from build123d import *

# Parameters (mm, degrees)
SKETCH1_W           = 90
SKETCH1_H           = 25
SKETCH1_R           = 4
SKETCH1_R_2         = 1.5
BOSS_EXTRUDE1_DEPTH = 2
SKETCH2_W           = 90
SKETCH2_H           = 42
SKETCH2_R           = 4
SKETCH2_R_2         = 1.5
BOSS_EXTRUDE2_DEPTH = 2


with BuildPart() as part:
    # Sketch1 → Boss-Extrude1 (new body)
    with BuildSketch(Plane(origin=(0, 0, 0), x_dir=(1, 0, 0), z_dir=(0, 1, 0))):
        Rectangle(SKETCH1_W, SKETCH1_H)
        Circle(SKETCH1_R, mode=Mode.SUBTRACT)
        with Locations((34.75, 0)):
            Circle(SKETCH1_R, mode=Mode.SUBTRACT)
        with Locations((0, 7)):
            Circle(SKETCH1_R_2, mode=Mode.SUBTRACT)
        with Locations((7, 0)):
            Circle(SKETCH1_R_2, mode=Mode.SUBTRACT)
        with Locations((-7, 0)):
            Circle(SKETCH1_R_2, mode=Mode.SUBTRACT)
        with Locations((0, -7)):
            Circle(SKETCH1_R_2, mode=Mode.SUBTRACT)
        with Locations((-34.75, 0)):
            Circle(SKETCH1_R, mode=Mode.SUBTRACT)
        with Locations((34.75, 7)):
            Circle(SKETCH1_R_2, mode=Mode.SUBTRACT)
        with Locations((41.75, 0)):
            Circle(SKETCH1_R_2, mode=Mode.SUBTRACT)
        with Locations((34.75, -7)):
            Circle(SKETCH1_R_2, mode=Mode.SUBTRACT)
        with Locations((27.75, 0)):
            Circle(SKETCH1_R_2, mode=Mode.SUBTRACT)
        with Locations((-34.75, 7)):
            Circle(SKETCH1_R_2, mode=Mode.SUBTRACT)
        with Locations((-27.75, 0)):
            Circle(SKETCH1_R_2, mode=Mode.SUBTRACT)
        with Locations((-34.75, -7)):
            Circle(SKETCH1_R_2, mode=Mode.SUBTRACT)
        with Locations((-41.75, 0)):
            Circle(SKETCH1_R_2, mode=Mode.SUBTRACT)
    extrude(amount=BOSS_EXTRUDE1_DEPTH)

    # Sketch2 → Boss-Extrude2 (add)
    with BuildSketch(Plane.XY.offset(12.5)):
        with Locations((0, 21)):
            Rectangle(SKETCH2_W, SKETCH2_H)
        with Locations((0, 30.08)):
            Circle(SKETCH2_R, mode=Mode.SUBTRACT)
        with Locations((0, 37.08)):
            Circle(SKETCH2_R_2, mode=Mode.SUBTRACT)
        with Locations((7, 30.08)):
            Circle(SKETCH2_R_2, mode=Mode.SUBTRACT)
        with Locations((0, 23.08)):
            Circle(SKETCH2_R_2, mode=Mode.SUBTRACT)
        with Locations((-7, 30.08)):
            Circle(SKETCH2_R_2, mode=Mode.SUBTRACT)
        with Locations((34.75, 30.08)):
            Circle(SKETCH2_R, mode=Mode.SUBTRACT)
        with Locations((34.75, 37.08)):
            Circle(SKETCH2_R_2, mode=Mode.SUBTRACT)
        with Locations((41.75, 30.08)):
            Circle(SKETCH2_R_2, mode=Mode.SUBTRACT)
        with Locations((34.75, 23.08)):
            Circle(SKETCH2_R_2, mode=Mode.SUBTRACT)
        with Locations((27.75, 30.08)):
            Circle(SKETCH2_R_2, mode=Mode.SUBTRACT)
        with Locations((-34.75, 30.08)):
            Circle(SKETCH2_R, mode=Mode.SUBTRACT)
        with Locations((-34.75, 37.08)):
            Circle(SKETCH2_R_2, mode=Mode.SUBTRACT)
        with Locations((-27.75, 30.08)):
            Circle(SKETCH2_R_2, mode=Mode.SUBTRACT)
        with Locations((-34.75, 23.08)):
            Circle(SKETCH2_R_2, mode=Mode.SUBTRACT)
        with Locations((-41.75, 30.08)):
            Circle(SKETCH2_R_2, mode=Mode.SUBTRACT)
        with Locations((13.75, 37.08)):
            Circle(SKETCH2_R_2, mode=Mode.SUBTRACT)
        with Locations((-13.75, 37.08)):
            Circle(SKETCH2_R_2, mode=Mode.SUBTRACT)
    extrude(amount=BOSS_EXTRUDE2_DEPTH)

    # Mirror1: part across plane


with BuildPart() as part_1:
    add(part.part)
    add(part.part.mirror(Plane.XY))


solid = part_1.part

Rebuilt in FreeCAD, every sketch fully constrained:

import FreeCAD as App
import Part
import Sketcher


def add_polygon(sketch, points):
    """Adds a closed chain of lines whose ends are joined by coincident constraints."""
    first, n = sketch.GeometryCount, len(points)
    for a, b in zip(points, points[1:] + points[:1]):
        sketch.addGeometry(Part.LineSegment(App.Vector(*a, 0), App.Vector(*b, 0)), False)
    for i in range(n):
        sketch.addConstraint(Sketcher.Constraint("Coincident", first + i, 2, first + (i + 1) % n, 1))

doc = App.newDocument("Part")
body = doc.addObject("PartDesign::Body", "Body")

sketch1 = body.newObject("Sketcher::SketchObject", "Sketch")
sketch1.AttachmentSupport = (doc.getObject("XZ_Plane"), [""])
sketch1.MapMode = "FlatFace"
add_polygon(sketch1, [(-45, -12.5), (-45, 12.5), (45, 12.5), (45, -12.5)])
sketch1.addGeometry(Part.Circle(App.Vector(-34.8, 7, 0), App.Vector(0, 0, 1), 1.5), False)
sketch1.addGeometry(Part.Circle(App.Vector(0, 7, 0), App.Vector(0, 0, 1), 1.5), False)
sketch1.addGeometry(Part.Circle(App.Vector(34.8, 7, 0), App.Vector(0, 0, 1), 1.5), False)
sketch1.addGeometry(Part.Circle(App.Vector(-41.8, 0, 0), App.Vector(0, 0, 1), 1.5), False)
sketch1.addGeometry(Part.Circle(App.Vector(-34.8, 0, 0), App.Vector(0, 0, 1), 4), False)
sketch1.addGeometry(Part.Circle(App.Vector(-27.8, 0, 0), App.Vector(0, 0, 1), 1.5), False)
sketch1.addGeometry(Part.Circle(App.Vector(-7, 0, 0), App.Vector(0, 0, 1), 1.5), False)
sketch1.addGeometry(Part.Circle(App.Vector(-34.8, -7, 0), App.Vector(0, 0, 1), 1.5), False)
sketch1.addGeometry(Part.Circle(App.Vector(0, 0, 0), App.Vector(0, 0, 1), 4), False)
sketch1.addGeometry(Part.Circle(App.Vector(7, 0, 0), App.Vector(0, 0, 1), 1.5), False)
sketch1.addGeometry(Part.Circle(App.Vector(27.8, 0, 0), App.Vector(0, 0, 1), 1.5), False)
sketch1.addGeometry(Part.Circle(App.Vector(34.8, 0, 0), App.Vector(0, 0, 1), 4), False)
sketch1.addGeometry(Part.Circle(App.Vector(41.8, 0, 0), App.Vector(0, 0, 1), 1.5), False)
sketch1.addGeometry(Part.Circle(App.Vector(0, -7, 0), App.Vector(0, 0, 1), 1.5), False)
sketch1.addGeometry(Part.Circle(App.Vector(34.8, -7, 0), App.Vector(0, 0, 1), 1.5), False)
sketch1.addConstraint(Sketcher.Constraint("Vertical", 0))
sketch1.addConstraint(Sketcher.Constraint("Horizontal", 1))
sketch1.addConstraint(Sketcher.Constraint("Vertical", 2))
sketch1.addConstraint(Sketcher.Constraint("Horizontal", 3))
sketch1.addConstraint(Sketcher.Constraint("Coincident", 12, 3, -1, 1))
sketch1.addConstraint(Sketcher.Constraint("Equal", 4, 5))
sketch1.addConstraint(Sketcher.Constraint("Equal", 5, 6))
sketch1.addConstraint(Sketcher.Constraint("Equal", 6, 7))
sketch1.addConstraint(Sketcher.Constraint("Equal", 7, 9))
sketch1.addConstraint(Sketcher.Constraint("Equal", 9, 10))
sketch1.addConstraint(Sketcher.Constraint("Equal", 10, 11))
sketch1.addConstraint(Sketcher.Constraint("Equal", 8, 12))
sketch1.addConstraint(Sketcher.Constraint("Equal", 11, 13))
sketch1.addConstraint(Sketcher.Constraint("Equal", 13, 14))
sketch1.addConstraint(Sketcher.Constraint("Equal", 12, 15))
sketch1.addConstraint(Sketcher.Constraint("Equal", 14, 16))
sketch1.addConstraint(Sketcher.Constraint("Equal", 16, 17))
sketch1.addConstraint(Sketcher.Constraint("Equal", 17, 18))
sketch1.addConstraint(Sketcher.Constraint("Symmetric", 6, 3, 11, 3, -1, 1))
sketch1.addConstraint(Sketcher.Constraint("Symmetric", 10, 3, 13, 3, -1, 1))
sketch1.addConstraint(Sketcher.Constraint("Symmetric", 9, 3, 14, 3, -1, 1))
sketch1.addConstraint(Sketcher.Constraint("Symmetric", 8, 3, 15, 3, -1, 1))
sketch1.addConstraint(Sketcher.Constraint("Symmetric", 7, 3, 16, 3, -1, 1))
sketch1.addConstraint(Sketcher.Constraint("Symmetric", 5, 3, 17, 3, -1, 1))
sketch1.addConstraint(Sketcher.Constraint("Symmetric", 4, 3, 18, 3, -1, 1))
sketch1.addConstraint(Sketcher.Constraint("Symmetric", 0, 2, 2, 2, -1, 1))
sketch1.addConstraint(Sketcher.Constraint("Symmetric", 4, 3, 6, 3, -2))
sketch1.addConstraint(Sketcher.Constraint("PointOnObject", 5, 3, -2))
sketch1.addConstraint(Sketcher.Constraint("PointOnObject", 7, 3, -1))
sketch1.addConstraint(Sketcher.Constraint("PointOnObject", 8, 3, -1))
sketch1.addConstraint(Sketcher.Constraint("PointOnObject", 9, 3, -1))
sketch1.addConstraint(Sketcher.Constraint("PointOnObject", 10, 3, -1))
sketch1.addConstraint(Sketcher.Constraint("Horizontal", 4, 3, 5, 3))
sketch1.addConstraint(Sketcher.Constraint("Vertical", 4, 3, 8, 3))
sketch1.addConstraint(Sketcher.Constraint("Diameter", 4, 3.0))
sketch1.addConstraint(Sketcher.Constraint("Diameter", 8, 8.0))
sketch1.addConstraint(Sketcher.Constraint("DistanceX", 1, 1, 1, 2, 90.0))
sketch1.addConstraint(Sketcher.Constraint("DistanceY", 0, 1, 0, 2, 25.0))
sketch1.addConstraint(Sketcher.Constraint("DistanceY", -1, 1, 4, 3, 7.0))
sketch1.addConstraint(Sketcher.Constraint("DistanceX", 10, 3, -1, 1, 7.0))
sketch1.addConstraint(Sketcher.Constraint("DistanceX", 7, 3, 4, 3, 7.0))
sketch1.addConstraint(Sketcher.Constraint("DistanceX", 8, 3, 9, 3, 7.0))
sketch1.addConstraint(Sketcher.Constraint("DistanceX", 4, 3, 6, 3, 69.5))
pad1 = body.newObject("PartDesign::Pad", "Pad")
pad1.Profile = sketch1
pad1.Length = 2
pad1.Reversed = True

sketch2 = body.newObject("Sketcher::SketchObject", "Sketch001")
sketch2.AttachmentSupport = (doc.getObject("XY_Plane"), [""])
sketch2.MapMode = "FlatFace"
sketch2.AttachmentOffset = App.Placement(App.Vector(0, 0, 12.5), App.Rotation())
add_polygon(sketch2, [(-45, 42), (-45, 0), (45, 0), (45, 42)])
sketch2.addGeometry(Part.Circle(App.Vector(-34.8, 23.1, 0), App.Vector(0, 0, 1), 1.5), False)
sketch2.addGeometry(Part.Circle(App.Vector(0, 23.1, 0), App.Vector(0, 0, 1), 1.5), False)
sketch2.addGeometry(Part.Circle(App.Vector(34.8, 23.1, 0), App.Vector(0, 0, 1), 1.5), False)
sketch2.addGeometry(Part.Circle(App.Vector(-41.8, 30.1, 0), App.Vector(0, 0, 1), 1.5), False)
sketch2.addGeometry(Part.Circle(App.Vector(-34.8, 30.1, 0), App.Vector(0, 0, 1), 4), False)
sketch2.addGeometry(Part.Circle(App.Vector(-27.8, 30.1, 0), App.Vector(0, 0, 1), 1.5), False)
sketch2.addGeometry(Part.Circle(App.Vector(-7, 30.1, 0), App.Vector(0, 0, 1), 1.5), False)
sketch2.addGeometry(Part.Circle(App.Vector(-34.8, 37.1, 0), App.Vector(0, 0, 1), 1.5), False)
sketch2.addGeometry(Part.Circle(App.Vector(-13.8, 37.1, 0), App.Vector(0, 0, 1), 1.5), False)
sketch2.addGeometry(Part.Circle(App.Vector(0, 30.1, 0), App.Vector(0, 0, 1), 4), False)
sketch2.addGeometry(Part.Circle(App.Vector(7, 30.1, 0), App.Vector(0, 0, 1), 1.5), False)
sketch2.addGeometry(Part.Circle(App.Vector(27.8, 30.1, 0), App.Vector(0, 0, 1), 1.5), False)
sketch2.addGeometry(Part.Circle(App.Vector(34.8, 30.1, 0), App.Vector(0, 0, 1), 4), False)
sketch2.addGeometry(Part.Circle(App.Vector(41.8, 30.1, 0), App.Vector(0, 0, 1), 1.5), False)
sketch2.addGeometry(Part.Circle(App.Vector(0, 37.1, 0), App.Vector(0, 0, 1), 1.5), False)
sketch2.addGeometry(Part.Circle(App.Vector(13.8, 37.1, 0), App.Vector(0, 0, 1), 1.5), False)
sketch2.addGeometry(Part.Circle(App.Vector(34.8, 37.1, 0), App.Vector(0, 0, 1), 1.5), False)
sketch2.addConstraint(Sketcher.Constraint("Vertical", 0))
sketch2.addConstraint(Sketcher.Constraint("Horizontal", 1))
sketch2.addConstraint(Sketcher.Constraint("Vertical", 2))
sketch2.addConstraint(Sketcher.Constraint("Horizontal", 3))
sketch2.addConstraint(Sketcher.Constraint("Equal", 4, 5))
sketch2.addConstraint(Sketcher.Constraint("Equal", 5, 6))
sketch2.addConstraint(Sketcher.Constraint("Equal", 6, 7))
sketch2.addConstraint(Sketcher.Constraint("Equal", 7, 9))
sketch2.addConstraint(Sketcher.Constraint("Equal", 9, 10))
sketch2.addConstraint(Sketcher.Constraint("Equal", 10, 11))
sketch2.addConstraint(Sketcher.Constraint("Equal", 11, 12))
sketch2.addConstraint(Sketcher.Constraint("Equal", 8, 13))
sketch2.addConstraint(Sketcher.Constraint("Equal", 12, 14))
sketch2.addConstraint(Sketcher.Constraint("Equal", 14, 15))
sketch2.addConstraint(Sketcher.Constraint("Equal", 13, 16))
sketch2.addConstraint(Sketcher.Constraint("Equal", 15, 17))
sketch2.addConstraint(Sketcher.Constraint("Equal", 17, 18))
sketch2.addConstraint(Sketcher.Constraint("Equal", 18, 19))
sketch2.addConstraint(Sketcher.Constraint("Equal", 19, 20))
sketch2.addConstraint(Sketcher.Constraint("Symmetric", 0, 2, 1, 2, -1, 1))
sketch2.addConstraint(Sketcher.Constraint("Symmetric", 4, 3, 6, 3, -2))
sketch2.addConstraint(Sketcher.Constraint("Symmetric", 10, 3, 14, 3, -2))
sketch2.addConstraint(Sketcher.Constraint("Symmetric", 9, 3, 15, 3, -2))
sketch2.addConstraint(Sketcher.Constraint("Symmetric", 8, 3, 16, 3, -2))
sketch2.addConstraint(Sketcher.Constraint("Symmetric", 7, 3, 17, 3, -2))
sketch2.addConstraint(Sketcher.Constraint("Symmetric", 12, 3, 19, 3, -2))
sketch2.addConstraint(Sketcher.Constraint("Symmetric", 11, 3, 20, 3, -2))
sketch2.addConstraint(Sketcher.Constraint("PointOnObject", 5, 3, -2))
sketch2.addConstraint(Sketcher.Constraint("PointOnObject", 13, 3, -2))
sketch2.addConstraint(Sketcher.Constraint("PointOnObject", 18, 3, -2))
sketch2.addConstraint(Sketcher.Constraint("Horizontal", 4, 3, 5, 3))
sketch2.addConstraint(Sketcher.Constraint("Horizontal", 7, 3, 8, 3))
sketch2.addConstraint(Sketcher.Constraint("Horizontal", 8, 3, 9, 3))
sketch2.addConstraint(Sketcher.Constraint("Horizontal", 9, 3, 10, 3))
sketch2.addConstraint(Sketcher.Constraint("Horizontal", 11, 3, 12, 3))
sketch2.addConstraint(Sketcher.Constraint("Horizontal", 10, 3, 13, 3))
sketch2.addConstraint(Sketcher.Constraint("Horizontal", 12, 3, 18, 3))
sketch2.addConstraint(Sketcher.Constraint("Vertical", 4, 3, 8, 3))
sketch2.addConstraint(Sketcher.Constraint("Vertical", 8, 3, 11, 3))
sketch2.addConstraint(Sketcher.Constraint("Diameter", 4, 3.0))
sketch2.addConstraint(Sketcher.Constraint("Diameter", 8, 8.0))
sketch2.addConstraint(Sketcher.Constraint("DistanceX", 1, 1, 1, 2, 90.0))
sketch2.addConstraint(Sketcher.Constraint("DistanceY", 0, 2, 0, 1, 42.0))
sketch2.addConstraint(Sketcher.Constraint("DistanceX", 10, 3, -1, 1, 7.0))
sketch2.addConstraint(Sketcher.Constraint("DistanceX", 7, 3, 4, 3, 7.0))
sketch2.addConstraint(Sketcher.Constraint("DistanceY", 4, 3, 7, 3, 7.0))
sketch2.addConstraint(Sketcher.Constraint("DistanceX", 8, 3, 9, 3, 7.0))
sketch2.addConstraint(Sketcher.Constraint("DistanceY", 8, 3, 11, 3, 7.0))
sketch2.addConstraint(Sketcher.Constraint("DistanceX", 9, 3, 12, 3, 14.0))
sketch2.addConstraint(Sketcher.Constraint("DistanceX", 4, 3, 6, 3, 69.5))
sketch2.addConstraint(Sketcher.Constraint("DistanceY", -1, 1, 4, 3, 23.08))
pad2 = body.newObject("PartDesign::Pad", "Pad001")
pad2.Profile = sketch2
pad2.Length = 2
body2 = doc.addObject("PartDesign::Body", "Body001")
doc.recompute()

body2.BaseFeature = body
doc.recompute()

mirroring = doc.addObject("Part::Mirroring", "Mirroring")
mirroring.Source = body
mirroring.Base = App.Vector(0, 0, 0)
mirroring.Normal = App.Vector(0, 0, 1)
body3 = doc.addObject("PartDesign::Body", "Body002")
body3.BaseFeature = mirroring
boolean = body2.newObject("PartDesign::Boolean", "Boolean")
boolean.Type = "Fuse"
boolean.addObjects([body3])
doc.recompute()
mirroring.Visibility = False

doc.recompute()
